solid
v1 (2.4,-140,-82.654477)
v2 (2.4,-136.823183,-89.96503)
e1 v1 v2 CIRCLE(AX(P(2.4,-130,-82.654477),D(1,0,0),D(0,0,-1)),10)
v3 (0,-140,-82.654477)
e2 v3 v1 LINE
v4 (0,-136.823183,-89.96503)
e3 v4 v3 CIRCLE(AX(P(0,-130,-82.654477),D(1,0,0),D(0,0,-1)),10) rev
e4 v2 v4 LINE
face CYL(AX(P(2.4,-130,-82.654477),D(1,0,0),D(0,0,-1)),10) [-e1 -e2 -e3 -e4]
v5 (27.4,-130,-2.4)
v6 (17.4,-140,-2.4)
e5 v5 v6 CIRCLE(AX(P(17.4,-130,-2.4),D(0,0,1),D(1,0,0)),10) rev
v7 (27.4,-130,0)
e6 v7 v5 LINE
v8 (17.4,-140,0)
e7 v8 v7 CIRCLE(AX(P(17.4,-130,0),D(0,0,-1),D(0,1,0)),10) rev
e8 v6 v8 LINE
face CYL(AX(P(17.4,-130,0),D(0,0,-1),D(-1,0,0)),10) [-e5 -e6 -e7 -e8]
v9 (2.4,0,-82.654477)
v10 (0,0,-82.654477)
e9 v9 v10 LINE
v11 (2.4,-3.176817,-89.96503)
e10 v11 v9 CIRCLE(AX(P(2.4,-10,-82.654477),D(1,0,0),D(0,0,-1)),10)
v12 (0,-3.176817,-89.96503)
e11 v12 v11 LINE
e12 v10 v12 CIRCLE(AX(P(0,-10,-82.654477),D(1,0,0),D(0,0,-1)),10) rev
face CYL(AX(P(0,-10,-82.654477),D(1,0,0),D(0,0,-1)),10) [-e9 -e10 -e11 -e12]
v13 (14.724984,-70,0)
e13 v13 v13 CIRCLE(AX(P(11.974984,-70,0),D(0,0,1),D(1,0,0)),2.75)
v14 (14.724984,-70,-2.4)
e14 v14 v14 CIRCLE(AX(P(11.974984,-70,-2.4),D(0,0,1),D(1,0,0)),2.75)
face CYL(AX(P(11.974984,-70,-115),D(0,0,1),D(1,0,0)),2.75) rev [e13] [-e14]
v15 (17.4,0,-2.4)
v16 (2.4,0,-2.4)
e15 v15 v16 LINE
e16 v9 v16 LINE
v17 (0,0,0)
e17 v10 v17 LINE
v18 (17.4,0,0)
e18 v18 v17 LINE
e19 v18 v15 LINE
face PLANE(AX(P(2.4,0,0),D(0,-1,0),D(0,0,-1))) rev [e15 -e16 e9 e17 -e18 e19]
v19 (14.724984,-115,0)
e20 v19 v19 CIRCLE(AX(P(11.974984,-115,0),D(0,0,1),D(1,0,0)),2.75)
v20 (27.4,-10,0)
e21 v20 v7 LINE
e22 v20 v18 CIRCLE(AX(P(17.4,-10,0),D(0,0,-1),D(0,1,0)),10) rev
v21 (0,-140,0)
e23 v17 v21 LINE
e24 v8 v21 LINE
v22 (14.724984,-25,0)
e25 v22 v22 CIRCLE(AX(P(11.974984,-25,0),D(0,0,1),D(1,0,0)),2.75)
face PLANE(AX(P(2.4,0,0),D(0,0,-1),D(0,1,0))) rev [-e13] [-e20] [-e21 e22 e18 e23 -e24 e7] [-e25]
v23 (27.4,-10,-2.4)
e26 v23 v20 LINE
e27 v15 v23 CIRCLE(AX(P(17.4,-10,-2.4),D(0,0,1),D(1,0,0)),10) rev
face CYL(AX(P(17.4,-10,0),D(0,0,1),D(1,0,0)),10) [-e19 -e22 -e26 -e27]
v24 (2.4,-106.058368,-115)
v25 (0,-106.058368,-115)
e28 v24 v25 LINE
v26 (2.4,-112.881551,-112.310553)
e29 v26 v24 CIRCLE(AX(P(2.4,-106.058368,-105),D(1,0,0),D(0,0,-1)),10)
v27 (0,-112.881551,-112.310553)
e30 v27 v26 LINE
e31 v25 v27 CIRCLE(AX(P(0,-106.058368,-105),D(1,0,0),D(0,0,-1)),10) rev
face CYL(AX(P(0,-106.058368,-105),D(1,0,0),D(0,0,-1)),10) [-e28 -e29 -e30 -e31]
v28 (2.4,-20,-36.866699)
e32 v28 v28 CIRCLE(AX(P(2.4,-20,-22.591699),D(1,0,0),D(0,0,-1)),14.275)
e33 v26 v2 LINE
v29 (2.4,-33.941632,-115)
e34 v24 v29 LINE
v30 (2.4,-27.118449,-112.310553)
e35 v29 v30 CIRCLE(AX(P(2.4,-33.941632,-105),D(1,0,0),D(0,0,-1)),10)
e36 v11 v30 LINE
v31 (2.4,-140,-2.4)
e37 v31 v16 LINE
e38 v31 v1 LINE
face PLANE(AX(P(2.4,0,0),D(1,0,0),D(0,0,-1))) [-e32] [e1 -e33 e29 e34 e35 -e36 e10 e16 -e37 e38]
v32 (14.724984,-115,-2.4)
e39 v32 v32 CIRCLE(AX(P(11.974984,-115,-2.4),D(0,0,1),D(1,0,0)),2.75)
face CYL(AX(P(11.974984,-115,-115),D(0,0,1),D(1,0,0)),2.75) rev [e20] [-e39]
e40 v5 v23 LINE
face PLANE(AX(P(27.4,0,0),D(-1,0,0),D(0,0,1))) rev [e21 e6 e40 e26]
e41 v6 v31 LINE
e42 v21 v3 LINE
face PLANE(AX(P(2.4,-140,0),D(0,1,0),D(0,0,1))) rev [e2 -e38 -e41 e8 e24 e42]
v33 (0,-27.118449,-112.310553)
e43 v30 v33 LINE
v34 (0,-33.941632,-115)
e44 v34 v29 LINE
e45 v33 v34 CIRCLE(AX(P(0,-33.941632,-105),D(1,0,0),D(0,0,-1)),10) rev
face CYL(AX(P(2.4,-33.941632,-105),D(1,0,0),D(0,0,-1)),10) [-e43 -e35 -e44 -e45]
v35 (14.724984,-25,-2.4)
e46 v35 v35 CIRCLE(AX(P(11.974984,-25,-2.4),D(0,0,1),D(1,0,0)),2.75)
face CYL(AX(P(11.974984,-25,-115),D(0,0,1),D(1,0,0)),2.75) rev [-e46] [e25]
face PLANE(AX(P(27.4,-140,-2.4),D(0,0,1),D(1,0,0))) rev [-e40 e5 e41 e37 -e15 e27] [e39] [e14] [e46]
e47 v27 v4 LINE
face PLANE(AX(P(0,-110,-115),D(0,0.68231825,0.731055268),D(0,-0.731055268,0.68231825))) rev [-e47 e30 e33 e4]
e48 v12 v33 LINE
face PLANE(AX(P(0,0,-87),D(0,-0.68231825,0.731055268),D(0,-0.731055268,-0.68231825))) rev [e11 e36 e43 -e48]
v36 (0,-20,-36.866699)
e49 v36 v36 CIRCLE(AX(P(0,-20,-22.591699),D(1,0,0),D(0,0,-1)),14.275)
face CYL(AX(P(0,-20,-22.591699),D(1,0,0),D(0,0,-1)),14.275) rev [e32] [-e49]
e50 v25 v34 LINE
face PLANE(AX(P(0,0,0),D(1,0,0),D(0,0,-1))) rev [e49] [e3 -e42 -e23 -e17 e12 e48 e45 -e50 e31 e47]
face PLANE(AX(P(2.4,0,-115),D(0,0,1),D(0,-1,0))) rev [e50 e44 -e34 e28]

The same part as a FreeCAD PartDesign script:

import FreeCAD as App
import Part
import Sketcher
Q = App.Units.Quantity


def edges_at(feature, points):
    """Names of the edges that pass closest to the given points."""
    edges = feature.Shape.Edges
    near = lambda p: min(range(len(edges)), key=lambda i: edges[i].distToShape(Part.Vertex(*p))[0])
    return sorted({f"Edge{near(p) + 1}" for p in points})


def add_polygon(sketch, points):
    """Adds a closed chain of lines whose ends are joined by coincident constraints."""
    first, n = sketch.GeometryCount, len(points)
    for a, b in zip(points, points[1:] + points[:1]):
        sketch.addGeometry(Part.LineSegment(App.Vector(*a, 0), App.Vector(*b, 0)), False)
    for i in range(n):
        sketch.addConstraint(Sketcher.Constraint("Coincident", first + i, 2, first + (i + 1) % n, 1))

doc = App.newDocument("Part")
params = doc.addObject("Spreadsheet::Sheet", "Params")
for row, (alias, value) in enumerate([
    ("sketch1_width", "140 mm"),
    ("sketch1_height", "115 mm"),
    ("pad1_length", "2.4 mm"),
    ("fillet_radius", "10 mm"),
    ("sketch3_width", "140 mm"),
    ("sketch3_height", "2.4 mm"),
    ("pad2_length", "25 mm"),
    ("fillet2_radius", "10 mm"),
    ("sketch4_diameter", "5.5 mm"),
    ("sketch5_diameter", "28.55 mm"),
], start=1):
    params.set(f"A{row}", alias)
    params.set(f"B{row}", "=" + value)
    params.setAlias(f"B{row}", alias)

body = doc.addObject("PartDesign::Body", "Body")

sketch1 = body.newObject("Sketcher::SketchObject", "Sketch")
sketch1.AttachmentSupport = (doc.getObject("YZ_Plane"), [""])
sketch1.MapMode = "FlatFace"
add_polygon(sketch1, [(0, 0), (-140, 0), (-140, -115), (0, -115)])
sketch1.addConstraint(Sketcher.Constraint("Horizontal", 0))
sketch1.addConstraint(Sketcher.Constraint("Vertical", 1))
sketch1.addConstraint(Sketcher.Constraint("Horizontal", 2))
sketch1.addConstraint(Sketcher.Constraint("Vertical", 3))
sketch1.addConstraint(Sketcher.Constraint("Coincident", 3, 2, -1, 1))
sketch1.addConstraint(Sketcher.Constraint("DistanceX", 0, 2, 0, 1, Q("140 mm")))
sketch1.addConstraint(Sketcher.Constraint("DistanceY", 1, 2, 1, 1, Q("115 mm")))
sketch1.setExpression("Constraints[9]", "Params.sketch1_width")
sketch1.setExpression("Constraints[10]", "Params.sketch1_height")
pad1 = body.newObject("PartDesign::Pad", "Pad")
pad1.Profile = sketch1
pad1.setExpression("Length", "Params.pad1_length")

sketch2 = body.newObject("Sketcher::SketchObject", "Sketch001")
sketch2.AttachmentSupport = (doc.getObject("YZ_Plane"), [""])
sketch2.MapMode = "FlatFace"
sketch2.AttachmentOffset = App.Placement(App.Vector(0, 0, 2.4), App.Rotation())
add_polygon(sketch2, [(0, -87), (-30, -115), (-33, -143), (15, -143)])
add_polygon(sketch2, [(-110, -115), (-140, -87), (-153, -87), (-153, -136)])
sketch2.addConstraint(Sketcher.Constraint("Horizontal", 2))
sketch2.addConstraint(Sketcher.Constraint("Horizontal", 5))
sketch2.addConstraint(Sketcher.Constraint("Vertical", 6))
sketch2.addConstraint(Sketcher.Constraint("PointOnObject", 3, 2, -2))
sketch2.addConstraint(Sketcher.Constraint("Horizontal", 3, 2, 4, 2))
sketch2.addConstraint(Sketcher.Constraint("Horizontal", 0, 2, 7, 2))
sketch2.addConstraint(Sketcher.Constraint("Equal", 0, 4))
sketch2.addConstraint(Sketcher.Constraint("DistanceX", 0, 2, -1, 1, Q("30 mm")))
sketch2.addConstraint(Sketcher.Constraint("DistanceY", 0, 2, -1, 1, Q("115 mm")))
sketch2.addConstraint(Sketcher.Constraint("DistanceY", 3, 2, -1, 1, Q("87 mm")))
sketch2.addConstraint(Sketcher.Constraint("DistanceX", 4, 2, -1, 1, Q("140 mm")))
sketch2.addConstraint(Sketcher.Constraint("DistanceX", 5, 2, 5, 1, Q("12.66111 mm")))
sketch2.addConstraint(Sketcher.Constraint("DistanceY", 1, 2, -1, 1, Q("142.6162 mm")))
sketch2.addConstraint(Sketcher.Constraint("DistanceX", 2, 1, 2, 2, Q("47.380962 mm")))
sketch2.addConstraint(Sketcher.Constraint("DistanceY", 6, 2, 6, 1, Q("49.310005 mm")))
sketch2.addConstraint(Sketcher.Constraint("Distance", 1, Q("27.729615 mm")))
pocket1 = body.newObject("PartDesign::Pocket", "Pocket")
pocket1.Profile = sketch2
pocket1.Type = "ThroughAll"
doc.recompute()

fillet = body.newObject("PartDesign::Fillet", "Fillet")
fillet.Base = (pocket1, edges_at(pocket1, [
    (1.2, 0, -87),
    (1.2, -30, -115),
    (1.2, -110, -115),
    (1.2, -140, -87),
]))
fillet.setExpression("Radius", "Params.fillet_radius")

sketch3 = body.newObject("Sketcher::SketchObject", "Sketch002")
sketch3.AttachmentSupport = (doc.getObject("YZ_Plane"), [""])
sketch3.MapMode = "FlatFace"
sketch3.AttachmentOffset = App.Placement(App.Vector(0, 0, 2.4), App.Rotation())
add_polygon(sketch3, [(0, 0), (-140, 0), (-140, -2.4), (0, -2.4)])
sketch3.addConstraint(Sketcher.Constraint("Horizontal", 0))
sketch3.addConstraint(Sketcher.Constraint("Vertical", 1))
sketch3.addConstraint(Sketcher.Constraint("Horizontal", 2))
sketch3.addConstraint(Sketcher.Constraint("Vertical", 3))
sketch3.addConstraint(Sketcher.Constraint("Coincident", 3, 2, -1, 1))
sketch3.addConstraint(Sketcher.Constraint("DistanceX", 0, 2, 0, 1, Q("140 mm")))
sketch3.addConstraint(Sketcher.Constraint("DistanceY", 1, 2, 1, 1, Q("2.4 mm")))
sketch3.setExpression("Constraints[9]", "Params.sketch3_width")
sketch3.setExpression("Constraints[10]", "Params.sketch3_height")
pad2 = body.newObject("PartDesign::Pad", "Pad001")
pad2.Profile = sketch3
pad2.setExpression("Length", "Params.pad2_length")
doc.recompute()

fillet2 = body.newObject("PartDesign::Fillet", "Fillet001")
fillet2.Base = (pad2, edges_at(pad2, [(27.4, -140, -1.2), (27.4, 0, -1.2)]))
fillet2.setExpression("Radius", "Params.fillet2_radius")

sketch4 = body.newObject("Sketcher::SketchObject", "Sketch003")
sketch4.AttachmentSupport = (doc.getObject("XY_Plane"), [""])
sketch4.MapMode = "FlatFace"
sketch4.addGeometry(Part.Circle(App.Vector(12, -70, 0), App.Vector(0, 0, 1), 2.8), False)
sketch4.addGeometry(Part.Circle(App.Vector(12, -25, 0), App.Vector(0, 0, 1), 2.8), False)
sketch4.addGeometry(Part.Circle(App.Vector(12, -115, 0), App.Vector(0, 0, 1), 2.8), False)
sketch4.addConstraint(Sketcher.Constraint("Equal", 0, 1))
sketch4.addConstraint(Sketcher.Constraint("Equal", 1, 2))
sketch4.addConstraint(Sketcher.Constraint("Vertical", 0, 3, 1, 3))
sketch4.addConstraint(Sketcher.Constraint("Vertical", 1, 3, 2, 3))
sketch4.addConstraint(Sketcher.Constraint("Diameter", 0, Q("5.5 mm")))
sketch4.addConstraint(Sketcher.Constraint("DistanceY", 0, 3, -1, 1, Q("70 mm")))
sketch4.addConstraint(Sketcher.Constraint("DistanceY", 1, 3, -1, 1, Q("25 mm")))
sketch4.addConstraint(Sketcher.Constraint("DistanceY", 2, 3, -1, 1, Q("115 mm")))
sketch4.addConstraint(Sketcher.Constraint("DistanceX", -1, 1, 0, 3, Q("11.974984 mm")))
sketch4.setExpression("Constraints[4]", "Params.sketch4_diameter")
pocket2 = body.newObject("PartDesign::Pocket", "Pocket001")
pocket2.Profile = sketch4
pocket2.Type = "ThroughAll"

sketch5 = body.newObject("Sketcher::SketchObject", "Sketch004")
sketch5.AttachmentSupport = (doc.getObject("YZ_Plane"), [""])
sketch5.MapMode = "FlatFace"
sketch5.AttachmentOffset = App.Placement(App.Vector(0, 0, 2.4), App.Rotation())
sketch5.addGeometry(Part.Circle(App.Vector(-20, -23, 0), App.Vector(0, 0, 1), 14), False)
sketch5.addConstraint(Sketcher.Constraint("Diameter", 0, Q("28.55 mm")))
sketch5.addConstraint(Sketcher.Constraint("DistanceX", 0, 3, -1, 1, Q("20 mm")))
sketch5.addConstraint(Sketcher.Constraint("DistanceY", 0, 3, -1, 1, Q("22.591699 mm")))
sketch5.setExpression("Constraints[0]", "Params.sketch5_diameter")
pocket3 = body.newObject("PartDesign::Pocket", "Pocket002")
pocket3.Profile = sketch5
pocket3.Type = "ThroughAll"

doc.recompute()
